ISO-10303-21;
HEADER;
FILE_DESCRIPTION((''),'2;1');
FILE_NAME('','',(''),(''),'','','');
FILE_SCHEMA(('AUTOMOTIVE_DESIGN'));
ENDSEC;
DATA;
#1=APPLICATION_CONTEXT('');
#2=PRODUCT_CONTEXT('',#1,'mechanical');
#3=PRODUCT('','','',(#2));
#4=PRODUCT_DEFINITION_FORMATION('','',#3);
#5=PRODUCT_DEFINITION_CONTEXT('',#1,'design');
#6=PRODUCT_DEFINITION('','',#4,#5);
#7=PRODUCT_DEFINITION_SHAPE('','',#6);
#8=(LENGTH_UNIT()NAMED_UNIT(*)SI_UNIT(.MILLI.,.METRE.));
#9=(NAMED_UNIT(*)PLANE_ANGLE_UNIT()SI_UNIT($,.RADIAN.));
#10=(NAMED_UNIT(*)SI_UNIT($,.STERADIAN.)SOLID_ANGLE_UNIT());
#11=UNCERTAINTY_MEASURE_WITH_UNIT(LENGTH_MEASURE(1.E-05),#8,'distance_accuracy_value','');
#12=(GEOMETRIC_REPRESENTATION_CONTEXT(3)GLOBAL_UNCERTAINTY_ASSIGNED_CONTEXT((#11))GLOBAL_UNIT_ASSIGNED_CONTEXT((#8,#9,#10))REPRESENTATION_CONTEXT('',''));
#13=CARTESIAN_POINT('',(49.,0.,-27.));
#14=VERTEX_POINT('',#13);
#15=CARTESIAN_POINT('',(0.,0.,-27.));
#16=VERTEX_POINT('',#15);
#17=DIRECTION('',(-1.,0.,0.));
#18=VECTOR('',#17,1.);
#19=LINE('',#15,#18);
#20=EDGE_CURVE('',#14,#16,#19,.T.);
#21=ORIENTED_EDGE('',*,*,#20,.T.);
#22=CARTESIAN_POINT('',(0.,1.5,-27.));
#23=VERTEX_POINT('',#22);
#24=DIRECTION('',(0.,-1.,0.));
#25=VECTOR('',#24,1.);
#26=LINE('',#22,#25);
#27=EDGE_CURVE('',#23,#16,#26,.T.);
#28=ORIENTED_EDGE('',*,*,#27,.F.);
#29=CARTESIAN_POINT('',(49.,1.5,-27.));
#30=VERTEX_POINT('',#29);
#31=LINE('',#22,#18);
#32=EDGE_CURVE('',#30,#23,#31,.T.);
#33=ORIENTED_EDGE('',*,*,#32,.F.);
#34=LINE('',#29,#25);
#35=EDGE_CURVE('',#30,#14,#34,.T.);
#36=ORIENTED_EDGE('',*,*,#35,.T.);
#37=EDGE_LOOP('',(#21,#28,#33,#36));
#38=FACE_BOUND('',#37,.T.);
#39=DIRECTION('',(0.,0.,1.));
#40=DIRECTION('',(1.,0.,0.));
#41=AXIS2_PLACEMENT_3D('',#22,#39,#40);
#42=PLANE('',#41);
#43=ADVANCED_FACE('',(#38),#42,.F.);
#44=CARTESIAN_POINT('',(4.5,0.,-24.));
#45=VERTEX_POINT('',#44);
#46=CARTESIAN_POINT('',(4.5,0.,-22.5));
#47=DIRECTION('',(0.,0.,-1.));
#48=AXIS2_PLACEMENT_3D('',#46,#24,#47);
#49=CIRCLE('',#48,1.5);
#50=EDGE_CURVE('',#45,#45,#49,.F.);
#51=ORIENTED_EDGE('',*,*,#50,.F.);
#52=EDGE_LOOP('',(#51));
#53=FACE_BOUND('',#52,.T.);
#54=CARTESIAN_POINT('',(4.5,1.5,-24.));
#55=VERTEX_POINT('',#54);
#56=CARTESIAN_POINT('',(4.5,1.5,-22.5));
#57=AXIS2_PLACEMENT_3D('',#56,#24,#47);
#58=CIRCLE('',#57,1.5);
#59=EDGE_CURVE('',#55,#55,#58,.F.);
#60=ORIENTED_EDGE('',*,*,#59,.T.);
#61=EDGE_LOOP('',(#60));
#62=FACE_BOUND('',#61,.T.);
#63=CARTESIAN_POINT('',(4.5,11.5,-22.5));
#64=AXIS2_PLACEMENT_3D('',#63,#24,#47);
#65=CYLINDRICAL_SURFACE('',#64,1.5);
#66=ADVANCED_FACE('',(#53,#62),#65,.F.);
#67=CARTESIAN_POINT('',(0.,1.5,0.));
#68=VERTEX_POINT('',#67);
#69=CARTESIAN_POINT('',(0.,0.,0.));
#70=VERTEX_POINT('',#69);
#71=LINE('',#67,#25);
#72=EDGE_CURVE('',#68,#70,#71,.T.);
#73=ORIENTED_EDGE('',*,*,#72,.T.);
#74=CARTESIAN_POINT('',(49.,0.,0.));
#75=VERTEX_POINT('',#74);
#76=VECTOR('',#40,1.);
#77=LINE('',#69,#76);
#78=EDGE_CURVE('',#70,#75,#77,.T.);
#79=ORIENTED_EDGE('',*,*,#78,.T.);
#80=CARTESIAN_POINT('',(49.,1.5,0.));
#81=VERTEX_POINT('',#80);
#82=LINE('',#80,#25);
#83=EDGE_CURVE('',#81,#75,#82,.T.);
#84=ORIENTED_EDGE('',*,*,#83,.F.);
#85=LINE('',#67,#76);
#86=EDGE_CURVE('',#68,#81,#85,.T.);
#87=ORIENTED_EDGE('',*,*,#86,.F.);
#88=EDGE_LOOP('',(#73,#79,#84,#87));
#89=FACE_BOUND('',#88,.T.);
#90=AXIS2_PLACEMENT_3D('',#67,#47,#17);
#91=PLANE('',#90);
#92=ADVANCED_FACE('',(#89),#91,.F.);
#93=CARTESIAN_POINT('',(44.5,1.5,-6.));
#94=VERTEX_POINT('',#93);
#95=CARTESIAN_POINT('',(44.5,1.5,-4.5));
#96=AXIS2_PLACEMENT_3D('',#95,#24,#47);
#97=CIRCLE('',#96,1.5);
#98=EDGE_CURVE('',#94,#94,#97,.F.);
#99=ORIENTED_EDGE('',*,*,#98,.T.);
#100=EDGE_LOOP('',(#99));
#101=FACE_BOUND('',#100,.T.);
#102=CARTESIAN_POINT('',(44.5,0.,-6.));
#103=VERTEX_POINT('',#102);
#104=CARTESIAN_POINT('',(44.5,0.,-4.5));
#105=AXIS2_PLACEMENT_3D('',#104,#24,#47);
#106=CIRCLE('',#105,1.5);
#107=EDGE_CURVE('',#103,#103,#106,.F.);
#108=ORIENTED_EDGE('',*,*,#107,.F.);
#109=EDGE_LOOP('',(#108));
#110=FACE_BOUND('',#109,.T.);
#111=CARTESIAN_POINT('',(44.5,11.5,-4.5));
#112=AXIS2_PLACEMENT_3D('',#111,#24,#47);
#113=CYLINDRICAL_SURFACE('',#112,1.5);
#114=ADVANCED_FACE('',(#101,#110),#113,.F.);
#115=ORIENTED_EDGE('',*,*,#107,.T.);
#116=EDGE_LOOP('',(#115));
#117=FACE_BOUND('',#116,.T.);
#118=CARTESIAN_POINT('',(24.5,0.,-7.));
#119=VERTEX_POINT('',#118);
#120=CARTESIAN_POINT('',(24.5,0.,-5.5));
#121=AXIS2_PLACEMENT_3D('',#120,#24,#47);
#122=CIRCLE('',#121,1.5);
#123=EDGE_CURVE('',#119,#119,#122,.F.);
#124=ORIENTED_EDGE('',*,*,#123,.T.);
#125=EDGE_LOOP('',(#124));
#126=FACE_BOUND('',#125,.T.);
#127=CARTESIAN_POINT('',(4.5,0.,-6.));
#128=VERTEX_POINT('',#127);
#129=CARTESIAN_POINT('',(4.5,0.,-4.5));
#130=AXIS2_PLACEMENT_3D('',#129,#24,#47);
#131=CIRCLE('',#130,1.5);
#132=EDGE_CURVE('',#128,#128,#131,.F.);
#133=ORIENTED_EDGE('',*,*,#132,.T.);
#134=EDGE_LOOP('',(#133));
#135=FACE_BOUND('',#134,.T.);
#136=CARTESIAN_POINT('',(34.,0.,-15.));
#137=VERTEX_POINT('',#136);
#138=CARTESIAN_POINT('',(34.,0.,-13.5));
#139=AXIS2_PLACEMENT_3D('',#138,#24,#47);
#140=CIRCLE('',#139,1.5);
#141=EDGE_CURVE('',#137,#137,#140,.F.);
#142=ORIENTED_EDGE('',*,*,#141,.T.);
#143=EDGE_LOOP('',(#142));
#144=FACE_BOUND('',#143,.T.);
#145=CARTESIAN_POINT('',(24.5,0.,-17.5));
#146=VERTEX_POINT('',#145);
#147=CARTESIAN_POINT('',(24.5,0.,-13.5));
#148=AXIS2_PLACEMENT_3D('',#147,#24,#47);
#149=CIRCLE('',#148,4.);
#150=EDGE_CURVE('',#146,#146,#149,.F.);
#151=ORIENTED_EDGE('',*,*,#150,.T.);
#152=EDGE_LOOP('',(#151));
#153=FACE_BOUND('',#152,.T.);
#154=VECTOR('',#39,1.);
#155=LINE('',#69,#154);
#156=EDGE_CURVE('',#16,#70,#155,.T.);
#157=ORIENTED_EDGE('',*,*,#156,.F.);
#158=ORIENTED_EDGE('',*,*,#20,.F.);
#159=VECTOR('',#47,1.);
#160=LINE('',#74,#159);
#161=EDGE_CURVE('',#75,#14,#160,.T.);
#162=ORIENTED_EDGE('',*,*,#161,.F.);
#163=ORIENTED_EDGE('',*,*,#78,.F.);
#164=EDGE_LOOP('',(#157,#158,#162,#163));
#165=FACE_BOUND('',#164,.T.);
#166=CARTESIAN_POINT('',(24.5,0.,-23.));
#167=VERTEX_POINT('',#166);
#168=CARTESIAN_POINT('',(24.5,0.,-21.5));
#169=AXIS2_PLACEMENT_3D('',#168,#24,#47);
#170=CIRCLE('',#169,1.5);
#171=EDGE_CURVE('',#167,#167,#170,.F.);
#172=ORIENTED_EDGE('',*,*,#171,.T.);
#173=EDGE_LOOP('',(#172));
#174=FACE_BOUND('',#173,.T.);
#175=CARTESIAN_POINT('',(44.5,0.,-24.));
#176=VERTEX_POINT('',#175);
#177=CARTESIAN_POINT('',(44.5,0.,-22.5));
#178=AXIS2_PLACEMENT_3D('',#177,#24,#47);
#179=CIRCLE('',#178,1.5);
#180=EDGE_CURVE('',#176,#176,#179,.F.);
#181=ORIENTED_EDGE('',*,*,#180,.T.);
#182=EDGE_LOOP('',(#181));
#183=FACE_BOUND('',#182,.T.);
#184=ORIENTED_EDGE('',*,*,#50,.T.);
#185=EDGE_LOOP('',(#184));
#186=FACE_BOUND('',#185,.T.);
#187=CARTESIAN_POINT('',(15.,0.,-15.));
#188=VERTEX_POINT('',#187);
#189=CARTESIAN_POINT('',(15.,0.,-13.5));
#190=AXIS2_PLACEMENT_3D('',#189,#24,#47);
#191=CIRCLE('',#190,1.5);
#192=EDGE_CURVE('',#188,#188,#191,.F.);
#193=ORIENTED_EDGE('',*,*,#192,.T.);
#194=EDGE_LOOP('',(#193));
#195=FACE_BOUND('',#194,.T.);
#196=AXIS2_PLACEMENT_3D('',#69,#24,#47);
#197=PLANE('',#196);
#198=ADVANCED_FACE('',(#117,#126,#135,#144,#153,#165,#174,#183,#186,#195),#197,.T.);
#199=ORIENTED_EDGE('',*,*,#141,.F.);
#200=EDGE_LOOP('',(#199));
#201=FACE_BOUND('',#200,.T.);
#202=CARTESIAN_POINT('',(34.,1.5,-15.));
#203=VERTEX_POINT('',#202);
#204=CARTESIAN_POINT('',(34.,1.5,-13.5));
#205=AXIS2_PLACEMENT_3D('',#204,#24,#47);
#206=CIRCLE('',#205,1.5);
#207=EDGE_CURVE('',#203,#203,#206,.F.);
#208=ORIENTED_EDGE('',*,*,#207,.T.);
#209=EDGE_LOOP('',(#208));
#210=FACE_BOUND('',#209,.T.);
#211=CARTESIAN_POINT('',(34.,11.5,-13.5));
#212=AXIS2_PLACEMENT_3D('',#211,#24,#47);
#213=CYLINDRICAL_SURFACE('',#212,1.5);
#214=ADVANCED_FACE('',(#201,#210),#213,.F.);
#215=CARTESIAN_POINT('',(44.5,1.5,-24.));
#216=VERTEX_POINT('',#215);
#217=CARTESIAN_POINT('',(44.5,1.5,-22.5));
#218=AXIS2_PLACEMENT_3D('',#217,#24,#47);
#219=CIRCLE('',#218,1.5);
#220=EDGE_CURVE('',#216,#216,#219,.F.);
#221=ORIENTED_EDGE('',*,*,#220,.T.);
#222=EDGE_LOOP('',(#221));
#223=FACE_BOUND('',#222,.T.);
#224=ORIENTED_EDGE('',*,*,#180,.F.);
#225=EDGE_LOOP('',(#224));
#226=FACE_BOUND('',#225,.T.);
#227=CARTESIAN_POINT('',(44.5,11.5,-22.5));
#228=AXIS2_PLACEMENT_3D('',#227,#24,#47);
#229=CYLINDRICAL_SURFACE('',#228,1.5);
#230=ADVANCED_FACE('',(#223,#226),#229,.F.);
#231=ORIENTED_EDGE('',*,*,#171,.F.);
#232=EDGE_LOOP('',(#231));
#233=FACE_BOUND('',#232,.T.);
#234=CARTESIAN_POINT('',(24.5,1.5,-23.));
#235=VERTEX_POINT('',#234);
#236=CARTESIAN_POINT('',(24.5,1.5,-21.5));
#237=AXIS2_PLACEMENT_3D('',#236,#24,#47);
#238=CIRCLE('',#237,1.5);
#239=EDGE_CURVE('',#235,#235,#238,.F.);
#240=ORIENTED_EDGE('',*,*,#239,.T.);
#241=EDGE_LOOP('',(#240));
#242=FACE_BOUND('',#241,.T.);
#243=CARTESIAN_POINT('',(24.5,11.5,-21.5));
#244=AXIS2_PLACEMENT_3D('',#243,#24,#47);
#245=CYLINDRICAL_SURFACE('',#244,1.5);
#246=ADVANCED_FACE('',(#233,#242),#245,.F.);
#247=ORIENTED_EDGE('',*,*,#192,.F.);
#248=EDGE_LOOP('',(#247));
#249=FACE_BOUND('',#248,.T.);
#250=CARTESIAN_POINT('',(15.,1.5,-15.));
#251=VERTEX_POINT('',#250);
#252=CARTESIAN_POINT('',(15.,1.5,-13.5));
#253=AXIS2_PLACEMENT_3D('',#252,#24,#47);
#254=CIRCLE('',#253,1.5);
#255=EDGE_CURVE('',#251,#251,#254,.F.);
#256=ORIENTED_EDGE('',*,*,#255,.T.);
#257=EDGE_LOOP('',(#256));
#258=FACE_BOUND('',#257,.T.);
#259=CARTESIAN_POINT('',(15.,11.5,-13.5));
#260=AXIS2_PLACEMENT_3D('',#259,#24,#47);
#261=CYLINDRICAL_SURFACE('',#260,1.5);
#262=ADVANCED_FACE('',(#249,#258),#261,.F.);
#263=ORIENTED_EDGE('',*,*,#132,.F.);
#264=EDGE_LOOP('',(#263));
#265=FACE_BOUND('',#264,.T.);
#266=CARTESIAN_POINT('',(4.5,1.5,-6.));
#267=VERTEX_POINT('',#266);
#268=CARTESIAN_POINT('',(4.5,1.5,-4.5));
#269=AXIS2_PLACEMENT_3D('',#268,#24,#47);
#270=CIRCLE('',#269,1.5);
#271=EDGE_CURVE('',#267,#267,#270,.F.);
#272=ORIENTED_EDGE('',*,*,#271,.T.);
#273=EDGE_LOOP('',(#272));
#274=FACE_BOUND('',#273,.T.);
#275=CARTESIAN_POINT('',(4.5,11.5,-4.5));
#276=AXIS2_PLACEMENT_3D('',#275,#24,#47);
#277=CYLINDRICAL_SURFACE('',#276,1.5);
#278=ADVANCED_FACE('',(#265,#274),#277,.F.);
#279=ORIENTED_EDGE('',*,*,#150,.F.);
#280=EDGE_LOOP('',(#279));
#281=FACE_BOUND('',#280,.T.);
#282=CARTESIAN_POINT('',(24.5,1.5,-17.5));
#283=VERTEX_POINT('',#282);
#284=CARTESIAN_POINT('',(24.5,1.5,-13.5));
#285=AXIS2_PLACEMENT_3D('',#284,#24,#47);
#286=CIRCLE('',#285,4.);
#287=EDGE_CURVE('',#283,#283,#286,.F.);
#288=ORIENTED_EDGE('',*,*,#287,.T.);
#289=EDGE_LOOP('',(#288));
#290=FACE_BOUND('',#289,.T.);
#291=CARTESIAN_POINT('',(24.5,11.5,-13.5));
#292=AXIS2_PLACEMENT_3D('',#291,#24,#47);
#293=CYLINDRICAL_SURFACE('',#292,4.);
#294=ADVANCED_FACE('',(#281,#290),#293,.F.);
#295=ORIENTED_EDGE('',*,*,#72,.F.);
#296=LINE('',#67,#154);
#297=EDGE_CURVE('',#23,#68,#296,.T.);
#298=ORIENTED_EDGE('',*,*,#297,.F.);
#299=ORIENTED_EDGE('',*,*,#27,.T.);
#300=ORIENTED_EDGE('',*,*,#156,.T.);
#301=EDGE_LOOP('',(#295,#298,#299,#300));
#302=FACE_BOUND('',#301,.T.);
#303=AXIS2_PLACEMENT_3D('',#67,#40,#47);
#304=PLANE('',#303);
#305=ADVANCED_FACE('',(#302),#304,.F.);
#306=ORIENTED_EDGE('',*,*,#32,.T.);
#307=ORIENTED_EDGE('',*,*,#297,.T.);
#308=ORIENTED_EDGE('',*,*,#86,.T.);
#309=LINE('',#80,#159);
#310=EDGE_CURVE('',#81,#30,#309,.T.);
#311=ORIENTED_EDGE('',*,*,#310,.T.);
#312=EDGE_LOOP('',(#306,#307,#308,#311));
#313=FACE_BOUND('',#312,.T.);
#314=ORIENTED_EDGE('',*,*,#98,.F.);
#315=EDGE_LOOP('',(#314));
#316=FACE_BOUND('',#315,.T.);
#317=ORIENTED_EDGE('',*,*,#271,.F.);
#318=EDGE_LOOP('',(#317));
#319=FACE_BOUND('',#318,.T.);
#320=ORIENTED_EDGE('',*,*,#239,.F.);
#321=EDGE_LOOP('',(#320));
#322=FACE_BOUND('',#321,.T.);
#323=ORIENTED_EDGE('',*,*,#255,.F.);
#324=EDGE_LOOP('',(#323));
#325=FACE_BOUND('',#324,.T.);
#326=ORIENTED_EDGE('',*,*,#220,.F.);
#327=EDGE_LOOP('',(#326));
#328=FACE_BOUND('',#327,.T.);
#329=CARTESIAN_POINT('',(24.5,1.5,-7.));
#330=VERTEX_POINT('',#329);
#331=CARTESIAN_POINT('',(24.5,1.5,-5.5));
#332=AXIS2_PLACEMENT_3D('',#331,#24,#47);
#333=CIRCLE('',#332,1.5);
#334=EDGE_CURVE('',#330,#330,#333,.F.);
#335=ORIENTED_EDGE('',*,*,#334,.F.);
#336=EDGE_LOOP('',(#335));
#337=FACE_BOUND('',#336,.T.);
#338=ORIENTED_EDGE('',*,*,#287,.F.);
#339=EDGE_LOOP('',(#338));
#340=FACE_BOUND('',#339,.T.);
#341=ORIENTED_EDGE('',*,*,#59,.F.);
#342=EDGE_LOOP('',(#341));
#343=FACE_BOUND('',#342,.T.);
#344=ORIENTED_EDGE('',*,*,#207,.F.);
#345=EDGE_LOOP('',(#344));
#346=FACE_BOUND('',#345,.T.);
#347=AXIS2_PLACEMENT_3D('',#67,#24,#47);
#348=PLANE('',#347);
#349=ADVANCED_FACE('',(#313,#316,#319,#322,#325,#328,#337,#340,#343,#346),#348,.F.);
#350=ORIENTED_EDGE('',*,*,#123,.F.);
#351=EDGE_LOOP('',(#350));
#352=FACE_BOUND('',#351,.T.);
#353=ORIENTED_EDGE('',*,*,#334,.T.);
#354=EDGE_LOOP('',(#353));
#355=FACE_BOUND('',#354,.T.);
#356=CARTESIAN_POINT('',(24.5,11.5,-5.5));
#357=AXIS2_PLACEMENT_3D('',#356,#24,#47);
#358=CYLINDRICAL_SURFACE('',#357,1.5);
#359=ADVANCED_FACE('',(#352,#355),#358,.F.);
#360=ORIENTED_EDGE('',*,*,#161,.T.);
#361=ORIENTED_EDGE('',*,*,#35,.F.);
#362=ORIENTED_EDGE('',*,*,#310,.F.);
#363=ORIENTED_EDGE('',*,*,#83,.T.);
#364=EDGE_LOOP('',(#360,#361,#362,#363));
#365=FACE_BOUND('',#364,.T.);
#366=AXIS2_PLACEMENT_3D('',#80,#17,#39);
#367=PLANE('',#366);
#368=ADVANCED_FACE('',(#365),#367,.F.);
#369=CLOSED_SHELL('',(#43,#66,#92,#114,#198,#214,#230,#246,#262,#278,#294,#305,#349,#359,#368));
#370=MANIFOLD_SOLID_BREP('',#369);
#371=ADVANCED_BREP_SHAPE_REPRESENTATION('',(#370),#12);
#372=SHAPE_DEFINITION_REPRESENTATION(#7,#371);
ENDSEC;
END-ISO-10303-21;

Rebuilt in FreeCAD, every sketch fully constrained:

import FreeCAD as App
import Part
import Sketcher

V = App.Vector
Q = App.Units.Quantity


def add_polygon(sketch, points):
    """Adds a closed chain of lines whose ends are joined by coincident constraints."""
    first, n = sketch.GeometryCount, len(points)
    for a, b in zip(points, points[1:] + points[:1]):
        sketch.addGeometry(Part.LineSegment(App.Vector(*a, 0), App.Vector(*b, 0)), False)
    for i in range(n):
        sketch.addConstraint(Sketcher.Constraint("Coincident", first + i, 2, first + (i + 1) % n, 1))

doc = App.newDocument("Part")
params = doc.addObject("Spreadsheet::Sheet", "Params")
for row, (alias, value) in enumerate([
    ("sketch1_width", "49 mm"),
    ("sketch1_height", "27 mm"),
    ("pad1_length", "1.5 mm"),
    ("sketch2_diameter", "3 mm"),
    ("sketch3_diameter", "3 mm"),
    ("sketch3_diameter2", "8 mm"),
], start=1):
    params.set(f"A{row}", alias)
    params.set(f"B{row}", "=" + value)
    params.setAlias(f"B{row}", alias)

body = doc.addObject("PartDesign::Body", "Body")

sketch1 = body.newObject("Sketcher::SketchObject", "Sketch")
sketch1.AttachmentSupport = (doc.getObject("XZ_Plane"), [""])
sketch1.MapMode = "FlatFace"
add_polygon(sketch1, [(0, -27), (0, 0), (49, 0), (49, -27)])
sketch1.addConstraint([
    Sketcher.Constraint("Vertical", 0),
    Sketcher.Constraint("Horizontal", 1),
    Sketcher.Constraint("Vertical", 2),
    Sketcher.Constraint("Horizontal", 3),
    Sketcher.Constraint("Coincident", 0, 2, -1, 1),
    Sketcher.Constraint("DistanceX", 1, 1, 1, 2, Q("49 mm")),
    Sketcher.Constraint("DistanceY", 0, 1, 0, 2, Q("27 mm")),
])
sketch1.setExpression("Constraints[9]", "Params.sketch1_width")
sketch1.setExpression("Constraints[10]", "Params.sketch1_height")
pad1 = body.newObject("PartDesign::Pad", "Pad")
pad1.Profile = sketch1
pad1.setExpression("Length", "Params.pad1_length")
pad1.Reversed = True

sketch2 = body.newObject("Sketcher::SketchObject", "Sketch001")
sketch2.AttachmentSupport = (doc.getObject("XZ_Plane"), [""])
sketch2.MapMode = "FlatFace"
sketch2.AttachmentOffset = App.Placement(V(0, 0, -1.5), App.Rotation())
sketch2.addGeometry([
    Part.Circle(V(4.5, -22.5, 0), V(0, 0, 1), 1.5),
    Part.Circle(V(4.5, -4.5, 0), V(0, 0, 1), 1.5),
    Part.Circle(V(44.5, -4.5, 0), V(0, 0, 1), 1.5),
    Part.Circle(V(44.5, -22.5, 0), V(0, 0, 1), 1.5),
], False)
sketch2.addConstraint([
    Sketcher.Constraint("Equal", 0, 1),
    Sketcher.Constraint("Equal", 1, 2),
    Sketcher.Constraint("Equal", 2, 3),
    Sketcher.Constraint("Horizontal", 1, 3, 2, 3),
    Sketcher.Constraint("Horizontal", 0, 3, 3, 3),
    Sketcher.Constraint("Vertical", 0, 3, 1, 3),
    Sketcher.Constraint("Vertical", 2, 3, 3, 3),
    Sketcher.Constraint("Diameter", 0, Q("3 mm")),
    Sketcher.Constraint("DistanceY", 0, 3, 1, 3, Q("18 mm")),
    Sketcher.Constraint("DistanceX", 1, 3, 2, 3, Q("40 mm")),
    Sketcher.Constraint("DistanceX", -1, 1, 0, 3, Q("4.5 mm")),
    Sketcher.Constraint("DistanceY", 0, 3, -1, 1, Q("22.5 mm")),
])
sketch2.setExpression("Constraints[7]", "Params.sketch2_diameter")
pocket1 = body.newObject("PartDesign::Pocket", "Pocket")
pocket1.Profile = sketch2
pocket1.Type = "ThroughAll"
pocket1.Midplane = True

sketch3 = body.newObject("Sketcher::SketchObject", "Sketch002")
sketch3.AttachmentSupport = (doc.getObject("XZ_Plane"), [""])
sketch3.MapMode = "FlatFace"
sketch3.AttachmentOffset = App.Placement(V(0, 0, -1.5), App.Rotation())
sketch3.addGeometry([
    Part.Circle(V(15, -13.5, 0), V(0, 0, 1), 1.5),
    Part.Circle(V(34, -13.5, 0), V(0, 0, 1), 1.5),
    Part.Circle(V(24.5, -21.5, 0), V(0, 0, 1), 1.5),
    Part.Circle(V(24.5, -5.5, 0), V(0, 0, 1), 1.5),
    Part.Circle(V(24.5, -13.5, 0), V(0, 0, 1), 4),
], False)
sketch3.addConstraint([
    Sketcher.Constraint("Equal", 0, 1),
    Sketcher.Constraint("Equal", 1, 2),
    Sketcher.Constraint("Equal", 2, 3),
    Sketcher.Constraint("Horizontal", 0, 3, 1, 3),
    Sketcher.Constraint("Horizontal", 1, 3, 4, 3),
    Sketcher.Constraint("Vertical", 2, 3, 3, 3),
    Sketcher.Constraint("Vertical", 3, 3, 4, 3),
    Sketcher.Constraint("Diameter", 0, Q("3 mm")),
    Sketcher.Constraint("Diameter", 4, Q("8 mm")),
    Sketcher.Constraint("DistanceX", -1, 1, 0, 3, Q("15 mm")),
    Sketcher.Constraint("DistanceX", -1, 1, 1, 3, Q("34 mm")),
    Sketcher.Constraint("DistanceY", 2, 3, 0, 3, Q("8 mm")),
    Sketcher.Constraint("DistanceY", 0, 3, 3, 3, Q("8 mm")),
    Sketcher.Constraint("DistanceY", 0, 3, -1, 1, Q("13.5 mm")),
    Sketcher.Constraint("DistanceX", -1, 1, 2, 3, Q("24.5 mm")),
])
sketch3.setExpression("Constraints[7]", "Params.sketch3_diameter")
sketch3.setExpression("Constraints[8]", "Params.sketch3_diameter2")
pocket2 = body.newObject("PartDesign::Pocket", "Pocket001")
pocket2.Profile = sketch3
pocket2.Type = "ThroughAll"
pocket2.Midplane = True

doc.recompute()
